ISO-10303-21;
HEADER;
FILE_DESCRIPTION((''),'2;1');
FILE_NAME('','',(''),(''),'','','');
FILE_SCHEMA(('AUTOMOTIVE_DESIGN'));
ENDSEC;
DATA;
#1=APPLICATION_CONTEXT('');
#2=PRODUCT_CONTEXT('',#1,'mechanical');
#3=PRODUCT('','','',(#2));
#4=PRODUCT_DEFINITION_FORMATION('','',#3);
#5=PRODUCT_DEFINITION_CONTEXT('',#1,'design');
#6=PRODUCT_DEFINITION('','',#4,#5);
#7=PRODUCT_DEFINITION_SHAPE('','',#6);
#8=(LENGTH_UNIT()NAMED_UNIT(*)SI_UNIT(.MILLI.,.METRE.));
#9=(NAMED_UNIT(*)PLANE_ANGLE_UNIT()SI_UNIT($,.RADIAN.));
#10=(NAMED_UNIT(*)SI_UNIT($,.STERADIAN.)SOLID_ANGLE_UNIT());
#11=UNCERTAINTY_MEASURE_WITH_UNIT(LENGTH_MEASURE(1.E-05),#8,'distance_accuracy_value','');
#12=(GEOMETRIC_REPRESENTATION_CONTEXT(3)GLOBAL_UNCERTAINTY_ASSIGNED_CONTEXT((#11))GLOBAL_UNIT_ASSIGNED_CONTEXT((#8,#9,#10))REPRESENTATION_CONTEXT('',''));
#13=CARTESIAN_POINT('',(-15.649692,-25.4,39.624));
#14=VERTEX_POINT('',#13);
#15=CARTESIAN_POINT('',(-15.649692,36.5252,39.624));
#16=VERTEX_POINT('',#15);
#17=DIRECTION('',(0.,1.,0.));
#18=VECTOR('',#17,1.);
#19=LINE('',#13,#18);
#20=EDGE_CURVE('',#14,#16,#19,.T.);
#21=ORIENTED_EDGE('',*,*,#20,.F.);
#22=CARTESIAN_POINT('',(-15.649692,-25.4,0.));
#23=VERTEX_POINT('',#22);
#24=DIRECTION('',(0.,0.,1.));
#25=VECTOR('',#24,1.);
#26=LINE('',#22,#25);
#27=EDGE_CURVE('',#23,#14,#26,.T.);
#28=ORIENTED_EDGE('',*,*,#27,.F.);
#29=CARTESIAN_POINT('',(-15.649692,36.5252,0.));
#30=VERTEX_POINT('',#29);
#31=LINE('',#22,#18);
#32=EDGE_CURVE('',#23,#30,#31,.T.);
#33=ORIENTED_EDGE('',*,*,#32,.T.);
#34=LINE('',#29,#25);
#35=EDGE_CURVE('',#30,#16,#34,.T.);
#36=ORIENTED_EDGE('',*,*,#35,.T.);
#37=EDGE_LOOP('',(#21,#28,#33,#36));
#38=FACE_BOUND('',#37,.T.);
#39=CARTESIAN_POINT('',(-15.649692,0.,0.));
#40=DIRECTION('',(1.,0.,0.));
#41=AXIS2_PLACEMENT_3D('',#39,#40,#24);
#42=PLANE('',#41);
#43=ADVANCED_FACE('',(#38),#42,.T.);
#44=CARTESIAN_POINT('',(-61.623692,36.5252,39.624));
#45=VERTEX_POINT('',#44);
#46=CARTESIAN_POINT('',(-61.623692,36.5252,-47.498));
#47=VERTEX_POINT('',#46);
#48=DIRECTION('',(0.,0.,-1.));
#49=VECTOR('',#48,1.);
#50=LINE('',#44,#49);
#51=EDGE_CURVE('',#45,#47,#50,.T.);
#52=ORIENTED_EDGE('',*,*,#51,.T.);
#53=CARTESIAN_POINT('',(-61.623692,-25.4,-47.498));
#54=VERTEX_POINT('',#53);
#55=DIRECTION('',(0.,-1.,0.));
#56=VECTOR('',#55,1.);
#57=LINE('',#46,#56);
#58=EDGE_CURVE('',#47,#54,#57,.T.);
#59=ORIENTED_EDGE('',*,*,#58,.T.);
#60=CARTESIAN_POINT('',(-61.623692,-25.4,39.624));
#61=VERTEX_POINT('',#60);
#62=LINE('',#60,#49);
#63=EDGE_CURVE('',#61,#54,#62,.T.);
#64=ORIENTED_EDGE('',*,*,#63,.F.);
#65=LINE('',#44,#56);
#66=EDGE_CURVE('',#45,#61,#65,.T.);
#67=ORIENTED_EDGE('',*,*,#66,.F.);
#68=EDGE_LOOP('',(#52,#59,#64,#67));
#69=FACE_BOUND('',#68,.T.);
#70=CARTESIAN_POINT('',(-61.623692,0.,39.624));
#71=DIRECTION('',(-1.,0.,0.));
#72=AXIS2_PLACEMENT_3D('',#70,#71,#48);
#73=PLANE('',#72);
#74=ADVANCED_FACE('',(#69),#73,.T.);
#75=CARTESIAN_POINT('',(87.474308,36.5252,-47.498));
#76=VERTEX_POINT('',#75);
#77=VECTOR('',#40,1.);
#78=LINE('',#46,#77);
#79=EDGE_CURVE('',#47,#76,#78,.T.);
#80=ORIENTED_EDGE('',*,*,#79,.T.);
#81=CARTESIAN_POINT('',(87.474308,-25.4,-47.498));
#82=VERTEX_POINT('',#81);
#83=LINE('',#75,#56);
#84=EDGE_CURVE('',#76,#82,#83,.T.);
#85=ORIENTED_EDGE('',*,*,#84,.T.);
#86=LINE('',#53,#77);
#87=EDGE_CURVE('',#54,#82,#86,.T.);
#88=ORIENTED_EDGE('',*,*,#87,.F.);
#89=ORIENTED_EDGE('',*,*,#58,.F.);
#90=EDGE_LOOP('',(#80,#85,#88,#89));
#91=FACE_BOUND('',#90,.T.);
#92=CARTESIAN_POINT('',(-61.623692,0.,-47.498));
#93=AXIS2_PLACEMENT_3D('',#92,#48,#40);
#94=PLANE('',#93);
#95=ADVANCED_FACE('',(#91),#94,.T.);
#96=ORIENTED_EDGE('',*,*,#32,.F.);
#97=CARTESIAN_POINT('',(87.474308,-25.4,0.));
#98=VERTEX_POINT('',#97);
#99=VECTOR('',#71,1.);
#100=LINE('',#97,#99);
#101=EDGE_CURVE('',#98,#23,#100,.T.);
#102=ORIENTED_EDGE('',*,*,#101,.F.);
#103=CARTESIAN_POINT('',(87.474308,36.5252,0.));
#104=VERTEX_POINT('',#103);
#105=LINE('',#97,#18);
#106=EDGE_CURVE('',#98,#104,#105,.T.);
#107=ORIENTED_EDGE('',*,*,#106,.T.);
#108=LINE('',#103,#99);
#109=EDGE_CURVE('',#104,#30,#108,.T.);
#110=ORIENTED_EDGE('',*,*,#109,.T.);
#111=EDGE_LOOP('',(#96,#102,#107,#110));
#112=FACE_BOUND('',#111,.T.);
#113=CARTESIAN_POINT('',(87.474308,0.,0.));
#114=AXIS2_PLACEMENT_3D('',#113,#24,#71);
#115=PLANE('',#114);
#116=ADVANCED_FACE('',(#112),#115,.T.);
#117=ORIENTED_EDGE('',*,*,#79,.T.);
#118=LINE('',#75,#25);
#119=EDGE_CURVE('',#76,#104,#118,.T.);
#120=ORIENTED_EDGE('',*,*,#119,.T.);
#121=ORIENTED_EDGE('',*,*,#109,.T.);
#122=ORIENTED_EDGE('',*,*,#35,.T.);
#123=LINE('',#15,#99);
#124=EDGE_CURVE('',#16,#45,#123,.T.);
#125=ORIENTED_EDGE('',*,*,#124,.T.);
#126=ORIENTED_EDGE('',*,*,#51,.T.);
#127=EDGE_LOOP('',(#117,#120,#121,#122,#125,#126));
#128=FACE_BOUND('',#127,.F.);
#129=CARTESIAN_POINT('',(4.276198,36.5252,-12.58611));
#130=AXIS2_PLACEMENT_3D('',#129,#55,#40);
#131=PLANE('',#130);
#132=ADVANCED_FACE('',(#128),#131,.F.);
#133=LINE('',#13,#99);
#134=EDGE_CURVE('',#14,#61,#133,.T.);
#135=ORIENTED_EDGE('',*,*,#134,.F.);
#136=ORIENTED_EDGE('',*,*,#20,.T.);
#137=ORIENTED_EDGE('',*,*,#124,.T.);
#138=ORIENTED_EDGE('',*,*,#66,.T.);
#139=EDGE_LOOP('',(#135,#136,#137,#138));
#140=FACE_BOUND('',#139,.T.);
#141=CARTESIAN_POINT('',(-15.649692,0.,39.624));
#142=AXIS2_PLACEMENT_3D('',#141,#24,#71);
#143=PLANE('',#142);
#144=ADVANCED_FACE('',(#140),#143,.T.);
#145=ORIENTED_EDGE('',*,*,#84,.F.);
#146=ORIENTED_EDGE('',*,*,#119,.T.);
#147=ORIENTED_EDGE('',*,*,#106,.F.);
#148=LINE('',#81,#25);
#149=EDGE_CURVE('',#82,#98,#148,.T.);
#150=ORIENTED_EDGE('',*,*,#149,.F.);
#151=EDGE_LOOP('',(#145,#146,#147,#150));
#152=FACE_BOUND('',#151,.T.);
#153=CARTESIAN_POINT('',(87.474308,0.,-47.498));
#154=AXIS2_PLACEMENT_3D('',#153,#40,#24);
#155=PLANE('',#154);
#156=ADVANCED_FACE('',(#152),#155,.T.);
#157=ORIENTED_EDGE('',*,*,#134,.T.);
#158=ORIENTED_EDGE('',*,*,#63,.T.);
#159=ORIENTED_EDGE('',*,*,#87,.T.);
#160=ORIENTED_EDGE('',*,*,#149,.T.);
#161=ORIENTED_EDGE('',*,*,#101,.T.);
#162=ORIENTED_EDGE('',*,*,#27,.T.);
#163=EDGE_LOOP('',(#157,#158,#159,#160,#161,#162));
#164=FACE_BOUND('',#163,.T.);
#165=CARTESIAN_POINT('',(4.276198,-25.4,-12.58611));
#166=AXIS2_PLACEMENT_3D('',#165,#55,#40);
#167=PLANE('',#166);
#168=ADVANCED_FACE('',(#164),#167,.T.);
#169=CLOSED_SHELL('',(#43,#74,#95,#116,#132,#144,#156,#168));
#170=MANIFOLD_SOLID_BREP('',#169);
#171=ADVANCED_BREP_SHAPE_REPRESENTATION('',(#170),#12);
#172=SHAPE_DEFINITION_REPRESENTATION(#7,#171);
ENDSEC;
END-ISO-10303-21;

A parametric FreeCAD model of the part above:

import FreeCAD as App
import Part
import Sketcher
from FreeCAD import Vector
Q = App.Units.Quantity

doc = App.newDocument("Part")
body = doc.addObject("PartDesign::Body", "Body")

# Sketch on XZ plane
sketch1 = body.newObject("Sketcher::SketchObject", "Sketch")
sketch1.AttachmentSupport = (doc.getObject("XZ_Plane"), [""])
sketch1.MapMode = "FlatFace"
sketch1.addGeometry([
    Part.LineSegment(Vector(-16, 40, 0), Vector(-62, 40, 0)),  # 0
    Part.LineSegment(Vector(-62, 40, 0), Vector(-62, -47, 0)),  # 1
    Part.LineSegment(Vector(-62, -47, 0), Vector(87, -47, 0)),  # 2
    Part.LineSegment(Vector(87, -47, 0), Vector(87, 0, 0)),  # 3
    Part.LineSegment(Vector(87, 0, 0), Vector(-16, 0, 0)),  # 4
    Part.LineSegment(Vector(-16, 0, 0), Vector(-16, 40, 0)),  # 5
], False)
sketch1.addConstraint([
    Sketcher.Constraint("Coincident", 0, 2, 1, 1),
    Sketcher.Constraint("Coincident", 1, 2, 2, 1),
    Sketcher.Constraint("Coincident", 2, 2, 3, 1),
    Sketcher.Constraint("Coincident", 3, 2, 4, 1),
    Sketcher.Constraint("Coincident", 4, 2, 5, 1),
    Sketcher.Constraint("Coincident", 5, 2, 0, 1),
    Sketcher.Constraint("Horizontal", 0),
    Sketcher.Constraint("Vertical", 1),
    Sketcher.Constraint("Horizontal", 2),
    Sketcher.Constraint("Vertical", 3),
    Sketcher.Constraint("Horizontal", 4),
    Sketcher.Constraint("Vertical", 5),
    Sketcher.Constraint("PointOnObject", 3, 2, -1),
    Sketcher.Constraint("DistanceX", 0, 2, 0, 1, Q("1.81 in")),
    Sketcher.Constraint("DistanceX", 2, 1, 2, 2, Q("5.87 in")),
    Sketcher.Constraint("DistanceY", 1, 2, 1, 1, Q("3.43 in")),
    Sketcher.Constraint("DistanceY", 3, 1, 3, 2, Q("1.87 in")),
    Sketcher.Constraint("DistanceX", 0, 2, -1, 1, Q("61.623692 mm")),
])
pad1 = body.newObject("PartDesign::Pad", "Pad")
pad1.Profile = sketch1
pad1.Type = "TwoLengths"
pad1.Length = Q("1 in")
pad1.Length2 = Q("1.438 in")

doc.recompute()
